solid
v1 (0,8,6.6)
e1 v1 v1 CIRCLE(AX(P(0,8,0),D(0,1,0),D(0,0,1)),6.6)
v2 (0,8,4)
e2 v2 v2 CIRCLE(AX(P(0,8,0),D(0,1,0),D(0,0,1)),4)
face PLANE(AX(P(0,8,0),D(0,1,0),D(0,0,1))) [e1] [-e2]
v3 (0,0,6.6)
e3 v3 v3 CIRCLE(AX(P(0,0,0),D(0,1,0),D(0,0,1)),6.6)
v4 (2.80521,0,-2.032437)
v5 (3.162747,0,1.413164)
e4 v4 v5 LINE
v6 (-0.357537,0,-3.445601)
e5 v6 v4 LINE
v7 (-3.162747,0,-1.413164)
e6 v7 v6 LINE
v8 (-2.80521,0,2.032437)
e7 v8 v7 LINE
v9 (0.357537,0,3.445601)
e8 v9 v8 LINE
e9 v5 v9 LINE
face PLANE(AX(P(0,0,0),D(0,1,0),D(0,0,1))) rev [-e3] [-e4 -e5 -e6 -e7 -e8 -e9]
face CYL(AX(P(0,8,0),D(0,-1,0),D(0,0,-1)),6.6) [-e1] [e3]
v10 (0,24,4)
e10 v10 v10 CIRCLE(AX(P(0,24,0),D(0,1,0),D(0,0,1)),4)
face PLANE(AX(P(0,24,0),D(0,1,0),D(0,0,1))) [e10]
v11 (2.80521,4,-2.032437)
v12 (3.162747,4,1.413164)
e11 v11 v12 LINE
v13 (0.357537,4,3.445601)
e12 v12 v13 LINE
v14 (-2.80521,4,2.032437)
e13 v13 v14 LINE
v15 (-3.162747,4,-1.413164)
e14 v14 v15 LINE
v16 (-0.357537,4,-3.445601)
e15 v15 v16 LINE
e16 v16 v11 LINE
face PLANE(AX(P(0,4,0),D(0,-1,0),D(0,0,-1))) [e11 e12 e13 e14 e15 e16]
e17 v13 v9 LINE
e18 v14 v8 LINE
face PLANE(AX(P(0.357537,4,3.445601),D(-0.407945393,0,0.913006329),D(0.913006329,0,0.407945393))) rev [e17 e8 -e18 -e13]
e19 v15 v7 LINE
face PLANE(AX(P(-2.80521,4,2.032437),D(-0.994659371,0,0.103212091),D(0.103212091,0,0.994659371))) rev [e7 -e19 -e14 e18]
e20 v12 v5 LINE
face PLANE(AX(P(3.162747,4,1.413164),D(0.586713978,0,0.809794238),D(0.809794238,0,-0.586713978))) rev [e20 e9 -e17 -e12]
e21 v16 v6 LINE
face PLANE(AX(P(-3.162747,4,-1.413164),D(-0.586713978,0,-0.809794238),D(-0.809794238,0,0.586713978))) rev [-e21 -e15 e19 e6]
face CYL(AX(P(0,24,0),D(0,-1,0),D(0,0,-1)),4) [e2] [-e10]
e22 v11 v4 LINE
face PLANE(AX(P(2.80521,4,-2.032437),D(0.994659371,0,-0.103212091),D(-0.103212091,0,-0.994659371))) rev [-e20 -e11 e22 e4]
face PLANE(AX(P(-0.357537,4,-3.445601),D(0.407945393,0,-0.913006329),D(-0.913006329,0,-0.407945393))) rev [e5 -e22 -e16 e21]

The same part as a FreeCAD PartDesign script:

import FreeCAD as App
import Part
import Sketcher
from FreeCAD import Vector
Q = App.Units.Quantity


def add_polygon(sketch, points):
    """Adds a closed chain of lines whose ends are joined by coincident constraints."""
    first, n = sketch.GeometryCount, len(points)
    for a, b in zip(points, points[1:] + points[:1]):
        sketch.addGeometry(Part.LineSegment(App.Vector(*a, 0), App.Vector(*b, 0)), False)
    for i in range(n):
        sketch.addConstraint(Sketcher.Constraint("Coincident", first + i, 2, first + (i + 1) % n, 1))

doc = App.newDocument("Part")
body = doc.addObject("PartDesign::Body", "Body")

# Sketch on XZ plane
sketch1 = body.newObject("Sketcher::SketchObject", "Sketch")
sketch1.AttachmentSupport = (doc.getObject("XZ_Plane"), [""])
sketch1.MapMode = "FlatFace"
sketch1.addGeometry(Part.Circle(Vector(0, 0, 0), Vector(0, 0, 1), 7), False)
sketch1.addConstraint(Sketcher.Constraint("Coincident", 0, 3, -1, 1))
sketch1.addConstraint(Sketcher.Constraint("Diameter", 0, Q("13.2 mm")))
pad1 = body.newObject("PartDesign::Pad", "Pad")
pad1.Profile = sketch1
pad1.Length = 8
pad1.Reversed = True

# Sketch on XZ plane
sketch2 = body.newObject("Sketcher::SketchObject", "Sketch001")
sketch2.AttachmentSupport = (doc.getObject("XZ_Plane"), [""])
sketch2.MapMode = "FlatFace"
sketch2.AttachmentOffset = App.Placement(Vector(0, 0, -8), App.Rotation())
sketch2.addGeometry(Part.Circle(Vector(0, 0, 0), Vector(0, 0, 1), 4), False)
sketch2.addConstraint(Sketcher.Constraint("Coincident", 0, 3, -1, 1))
sketch2.addConstraint(Sketcher.Constraint("Diameter", 0, Q("8 mm")))
pad2 = body.newObject("PartDesign::Pad", "Pad001")
pad2.Profile = sketch2
pad2.Length = 16
pad2.Reversed = True

# Sketch on XZ plane
sketch3 = body.newObject("Sketcher::SketchObject", "Sketch002")
sketch3.AttachmentSupport = (doc.getObject("XZ_Plane"), [""])
sketch3.MapMode = "FlatFace"
add_polygon(sketch3, [(2.8, -2), (3.2, 1.4), (0.4, 3.4), (-2.8, 2), (-3.2, -1.4), (-0.4, -3.4)])  # lines 0-5
sketch3.addConstraint(Sketcher.Constraint("Symmetric", 0, 2, 3, 2, -1, 1))
sketch3.addConstraint(Sketcher.Constraint("Symmetric", 1, 2, 4, 2, -1, 1))
sketch3.addConstraint(Sketcher.Constraint("Symmetric", 2, 2, 5, 2, -1, 1))
sketch3.addConstraint(Sketcher.Constraint("Equal", 0, 1))
sketch3.addConstraint(Sketcher.Constraint("Equal", 1, 2))
sketch3.addConstraint(Sketcher.Constraint("Distance", 0, Q("3.464102 mm")))
sketch3.addConstraint(Sketcher.Constraint("DistanceY", -1, 1, 1, 2, Q("3.445601 mm")))
sketch3.addConstraint(Sketcher.Constraint("DistanceY", 3, 2, 2, 2, Q("3.445601 mm")))
sketch3.addConstraint(Sketcher.Constraint("DistanceX", 2, 2, -1, 1, Q("2.80521 mm")))
pocket1 = body.newObject("PartDesign::Pocket", "Pocket")
pocket1.Profile = sketch3
pocket1.Length = 4

doc.recompute()
